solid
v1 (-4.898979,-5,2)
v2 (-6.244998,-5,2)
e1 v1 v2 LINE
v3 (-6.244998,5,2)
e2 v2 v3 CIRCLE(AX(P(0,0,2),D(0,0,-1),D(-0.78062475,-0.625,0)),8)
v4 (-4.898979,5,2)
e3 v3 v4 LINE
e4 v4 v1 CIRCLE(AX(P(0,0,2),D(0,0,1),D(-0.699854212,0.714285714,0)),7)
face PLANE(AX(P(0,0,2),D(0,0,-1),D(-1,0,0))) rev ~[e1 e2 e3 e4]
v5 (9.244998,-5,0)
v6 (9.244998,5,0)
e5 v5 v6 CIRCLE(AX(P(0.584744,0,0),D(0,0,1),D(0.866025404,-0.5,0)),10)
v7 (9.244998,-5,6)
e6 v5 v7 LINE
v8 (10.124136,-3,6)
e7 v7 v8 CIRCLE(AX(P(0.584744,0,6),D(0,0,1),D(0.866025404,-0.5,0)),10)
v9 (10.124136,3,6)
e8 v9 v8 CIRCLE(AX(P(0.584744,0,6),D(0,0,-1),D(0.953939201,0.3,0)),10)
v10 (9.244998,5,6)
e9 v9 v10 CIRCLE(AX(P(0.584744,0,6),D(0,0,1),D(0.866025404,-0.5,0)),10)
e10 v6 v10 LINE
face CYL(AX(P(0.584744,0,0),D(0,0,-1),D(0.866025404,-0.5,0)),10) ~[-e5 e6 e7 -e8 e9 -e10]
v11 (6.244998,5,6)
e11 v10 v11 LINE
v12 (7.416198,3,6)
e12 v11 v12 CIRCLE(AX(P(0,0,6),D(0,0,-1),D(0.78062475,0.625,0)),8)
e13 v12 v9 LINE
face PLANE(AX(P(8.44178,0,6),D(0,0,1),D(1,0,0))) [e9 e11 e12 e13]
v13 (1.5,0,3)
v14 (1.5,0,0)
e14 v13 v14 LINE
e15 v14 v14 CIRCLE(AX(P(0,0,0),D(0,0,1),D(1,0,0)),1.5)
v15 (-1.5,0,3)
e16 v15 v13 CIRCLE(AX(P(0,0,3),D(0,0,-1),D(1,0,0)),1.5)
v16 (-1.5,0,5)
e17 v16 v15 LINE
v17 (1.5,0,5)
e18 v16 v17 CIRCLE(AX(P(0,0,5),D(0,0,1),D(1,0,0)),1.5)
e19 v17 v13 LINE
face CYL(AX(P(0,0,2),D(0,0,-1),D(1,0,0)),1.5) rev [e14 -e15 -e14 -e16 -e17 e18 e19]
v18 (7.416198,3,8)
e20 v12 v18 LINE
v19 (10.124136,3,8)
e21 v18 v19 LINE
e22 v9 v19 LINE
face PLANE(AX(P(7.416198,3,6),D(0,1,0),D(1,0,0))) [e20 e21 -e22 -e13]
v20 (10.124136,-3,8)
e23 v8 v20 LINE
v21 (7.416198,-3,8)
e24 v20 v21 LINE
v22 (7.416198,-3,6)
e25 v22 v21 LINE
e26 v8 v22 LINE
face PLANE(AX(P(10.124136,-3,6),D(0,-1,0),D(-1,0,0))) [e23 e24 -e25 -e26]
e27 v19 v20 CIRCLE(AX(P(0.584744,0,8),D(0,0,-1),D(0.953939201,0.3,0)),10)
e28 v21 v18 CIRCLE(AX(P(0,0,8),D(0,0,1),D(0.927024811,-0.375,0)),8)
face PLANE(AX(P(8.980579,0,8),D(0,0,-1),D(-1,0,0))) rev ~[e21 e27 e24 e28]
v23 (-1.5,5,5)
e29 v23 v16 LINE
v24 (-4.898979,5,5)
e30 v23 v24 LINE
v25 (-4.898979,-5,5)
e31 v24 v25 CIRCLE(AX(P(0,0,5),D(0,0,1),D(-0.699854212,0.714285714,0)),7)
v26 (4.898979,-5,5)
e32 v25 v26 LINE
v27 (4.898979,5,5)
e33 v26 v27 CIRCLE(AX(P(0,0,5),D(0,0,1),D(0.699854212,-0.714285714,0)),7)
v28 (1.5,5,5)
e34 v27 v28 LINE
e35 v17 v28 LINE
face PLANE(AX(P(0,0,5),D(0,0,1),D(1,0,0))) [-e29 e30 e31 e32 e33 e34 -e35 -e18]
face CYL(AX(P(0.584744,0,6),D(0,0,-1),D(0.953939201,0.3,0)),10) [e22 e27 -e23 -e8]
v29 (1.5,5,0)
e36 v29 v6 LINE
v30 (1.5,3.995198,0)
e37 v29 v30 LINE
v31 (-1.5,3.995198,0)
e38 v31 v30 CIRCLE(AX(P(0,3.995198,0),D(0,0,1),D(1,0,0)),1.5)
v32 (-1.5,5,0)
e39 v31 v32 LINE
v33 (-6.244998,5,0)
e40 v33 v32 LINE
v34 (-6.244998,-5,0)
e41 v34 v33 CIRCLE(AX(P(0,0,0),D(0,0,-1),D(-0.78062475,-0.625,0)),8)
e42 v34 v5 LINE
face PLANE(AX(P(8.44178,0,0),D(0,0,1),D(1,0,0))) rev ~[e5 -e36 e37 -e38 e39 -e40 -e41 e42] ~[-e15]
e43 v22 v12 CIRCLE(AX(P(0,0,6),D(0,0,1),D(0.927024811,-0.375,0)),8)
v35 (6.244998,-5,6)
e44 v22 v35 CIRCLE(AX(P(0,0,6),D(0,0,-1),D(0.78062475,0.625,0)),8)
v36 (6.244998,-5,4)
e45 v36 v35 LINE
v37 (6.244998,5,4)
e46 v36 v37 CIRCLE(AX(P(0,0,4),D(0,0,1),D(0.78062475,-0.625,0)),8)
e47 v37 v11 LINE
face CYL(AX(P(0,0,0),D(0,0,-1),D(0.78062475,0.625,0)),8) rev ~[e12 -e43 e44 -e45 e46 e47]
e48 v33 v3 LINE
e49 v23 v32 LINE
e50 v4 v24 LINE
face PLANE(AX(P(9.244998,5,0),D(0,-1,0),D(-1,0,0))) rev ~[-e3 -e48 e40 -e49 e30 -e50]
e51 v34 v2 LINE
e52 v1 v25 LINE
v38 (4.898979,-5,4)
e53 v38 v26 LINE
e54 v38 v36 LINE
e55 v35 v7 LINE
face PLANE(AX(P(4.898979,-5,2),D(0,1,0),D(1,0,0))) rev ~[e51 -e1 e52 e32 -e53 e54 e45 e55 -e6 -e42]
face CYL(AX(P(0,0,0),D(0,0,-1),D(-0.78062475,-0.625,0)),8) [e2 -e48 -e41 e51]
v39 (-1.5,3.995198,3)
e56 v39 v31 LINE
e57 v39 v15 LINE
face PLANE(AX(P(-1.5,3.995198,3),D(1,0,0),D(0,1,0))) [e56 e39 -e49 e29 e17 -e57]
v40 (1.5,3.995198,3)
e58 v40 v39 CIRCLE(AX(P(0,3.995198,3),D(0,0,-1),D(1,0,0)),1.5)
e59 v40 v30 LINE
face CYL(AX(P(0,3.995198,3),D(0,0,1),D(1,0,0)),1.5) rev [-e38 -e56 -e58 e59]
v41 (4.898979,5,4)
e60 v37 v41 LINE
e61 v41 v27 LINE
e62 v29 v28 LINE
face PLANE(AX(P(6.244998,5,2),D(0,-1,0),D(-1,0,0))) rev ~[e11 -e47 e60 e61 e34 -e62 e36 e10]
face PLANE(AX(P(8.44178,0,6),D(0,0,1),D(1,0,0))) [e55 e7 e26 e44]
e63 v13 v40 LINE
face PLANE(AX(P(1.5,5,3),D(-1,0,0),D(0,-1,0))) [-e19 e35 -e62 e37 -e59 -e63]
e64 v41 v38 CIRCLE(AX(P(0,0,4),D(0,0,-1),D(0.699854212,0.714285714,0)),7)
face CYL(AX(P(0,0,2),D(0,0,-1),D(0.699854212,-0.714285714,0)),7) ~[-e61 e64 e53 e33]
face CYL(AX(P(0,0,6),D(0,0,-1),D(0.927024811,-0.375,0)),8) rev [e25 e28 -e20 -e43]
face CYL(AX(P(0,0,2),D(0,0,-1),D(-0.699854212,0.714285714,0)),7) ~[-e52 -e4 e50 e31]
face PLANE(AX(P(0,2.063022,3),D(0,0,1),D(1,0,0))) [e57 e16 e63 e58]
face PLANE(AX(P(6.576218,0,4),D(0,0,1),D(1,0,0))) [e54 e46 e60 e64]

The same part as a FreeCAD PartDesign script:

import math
import FreeCAD as App
import Part
import Sketcher
Q = App.Units.Quantity

doc = App.newDocument("Part")
body = doc.addObject("PartDesign::Body", "Body")

# Sketch on XY plane
sketch1 = doc.addObject("Sketcher::SketchObject", "Sketch")
body.addObject(sketch1)
sketch1.AttachmentSupport = (doc.XY_Plane, [""])
sketch1.MapMode = "FlatFace"
sketch1.addGeometry([
    Part.LineSegment(App.Vector(6.2, 5, 0), App.Vector(-6.2, 5, 0)),  # 0
    Part.ArcOfCircle(Part.Circle(App.Vector(0, 0, 0), App.Vector(0, 0, 1), 8), math.radians(141), math.radians(219)),  # 1
    Part.LineSegment(App.Vector(-6.2, -5, 0), App.Vector(6.2, -5, 0)),  # 2
    Part.ArcOfCircle(Part.Circle(App.Vector(0, 0, 0), App.Vector(0, 0, 1), 8), math.radians(-39), math.radians(39)),  # 3
    Part.Circle(App.Vector(0, 0, 0), App.Vector(0, 0, 1), 1.5),  # 4
], False)
sketch1.addConstraint([
    Sketcher.Constraint("Coincident", 0, 2, 1, 1),
    Sketcher.Constraint("Coincident", 1, 2, 2, 1),
    Sketcher.Constraint("Coincident", 2, 2, 3, 1),
    Sketcher.Constraint("Coincident", 3, 2, 0, 1),
    Sketcher.Constraint("Horizontal", 0),
    Sketcher.Constraint("Horizontal", 2),
    Sketcher.Constraint("Coincident", 1, 3, -1, 1),
    Sketcher.Constraint("Coincident", 3, 3, -1, 1),
    Sketcher.Constraint("Coincident", 4, 3, -1, 1),
    Sketcher.Constraint("Equal", 1, 3),
    Sketcher.Constraint("Vertical", 0, 2, 1, 2),
    Sketcher.Constraint("Diameter", 4, Q("3 mm")),
    Sketcher.Constraint("Radius", 1, Q("8 mm")),
    Sketcher.Constraint("DistanceY", -1, 1, 0, 2, Q("5 mm")),
])
pad1 = doc.addObject("PartDesign::Pad", "Pad")
body.addObject(pad1)
pad1.Profile = sketch1
pad1.Length = 2

# Sketch on XY plane
sketch2 = doc.addObject("Sketcher::SketchObject", "Sketch001")
body.addObject(sketch2)
sketch2.AttachmentSupport = (doc.XY_Plane, [""])
sketch2.MapMode = "FlatFace"
sketch2.AttachmentOffset = App.Placement(App.Vector(0, 0, 2), App.Rotation())
sketch2.addGeometry([
    Part.LineSegment(App.Vector(-4.9, -5, 0), App.Vector(4.9, -5, 0)),  # 0
    Part.ArcOfCircle(Part.Circle(App.Vector(0, 0, 0), App.Vector(0, 0, 1), 7), math.radians(-46), math.radians(46)),  # 1
    Part.LineSegment(App.Vector(4.9, 5, 0), App.Vector(-4.9, 5, 0)),  # 2
    Part.ArcOfCircle(Part.Circle(App.Vector(0, 0, 0), App.Vector(0, 0, 1), 7), math.radians(134), math.radians(226)),  # 3
    Part.Circle(App.Vector(0, 0, 0), App.Vector(0, 0, 1), 1.5),  # 4
], False)
sketch2.addConstraint([
    Sketcher.Constraint("Coincident", 0, 2, 1, 1),
    Sketcher.Constraint("Coincident", 1, 2, 2, 1),
    Sketcher.Constraint("Coincident", 2, 2, 3, 1),
    Sketcher.Constraint("Coincident", 3, 2, 0, 1),
    Sketcher.Constraint("Horizontal", 0),
    Sketcher.Constraint("Horizontal", 2),
    Sketcher.Constraint("Coincident", 1, 3, -1, 1),
    Sketcher.Constraint("Coincident", 3, 3, -1, 1),
    Sketcher.Constraint("Coincident", 4, 3, -1, 1),
    Sketcher.Constraint("Equal", 1, 3),
    Sketcher.Constraint("Vertical", 0, 2, 1, 2),
    Sketcher.Constraint("Diameter", 4, Q("3 mm")),
    Sketcher.Constraint("Radius", 1, Q("7 mm")),
    Sketcher.Constraint("DistanceY", 0, 2, -1, 1, Q("5 mm")),
])
pad2 = doc.addObject("PartDesign::Pad", "Pad001")
body.addObject(pad2)
pad2.Profile = sketch2
pad2.Length = 3

# Sketch on XY plane
sketch3 = doc.addObject("Sketcher::SketchObject", "Sketch002")
body.addObject(sketch3)
sketch3.AttachmentSupport = (doc.XY_Plane, [""])
sketch3.MapMode = "FlatFace"
sketch3.addGeometry([
    Part.LineSegment(App.Vector(9.2, -5, 0), App.Vector(6.2, -5, 0)),
    Part.ArcOfCircle(Part.Circle(App.Vector(0, 0, 0), App.Vector(0, 0, 1), 8), math.radians(-39), math.radians(39)),
    Part.LineSegment(App.Vector(6.2, 5, 0), App.Vector(9.2, 5, 0)),
    Part.ArcOfCircle(Part.Circle(App.Vector(0.6, 0, 0), App.Vector(0, 0, 1), 10), math.radians(-30), math.radians(30)),
], False)
sketch3.addConstraint([
    Sketcher.Constraint("Coincident", 0, 2, 1, 1),
    Sketcher.Constraint("Coincident", 1, 2, 2, 1),
    Sketcher.Constraint("Coincident", 2, 2, 3, 2),
    Sketcher.Constraint("Coincident", 3, 1, 0, 1),
    Sketcher.Constraint("Horizontal", 0),
    Sketcher.Constraint("Horizontal", 2),
    Sketcher.Constraint("Coincident", 1, 3, -1, 1),
    Sketcher.Constraint("Symmetric", 2, 2, 3, 1, -1),
    Sketcher.Constraint("Radius", 1, Q("8 mm")),
    Sketcher.Constraint("Radius", 3, Q("10 mm")),
    Sketcher.Constraint("DistanceX", 0, 2, 0, 1, Q("3 mm")),
    Sketcher.Constraint("DistanceY", 0, 2, -1, 1, Q("5 mm")),
])
pad3 = doc.addObject("PartDesign::Pad", "Pad002")
body.addObject(pad3)
pad3.Profile = sketch3
pad3.Length = 6

# Sketch on XY plane
sketch4 = doc.addObject("Sketcher::SketchObject", "Sketch003")
body.addObject(sketch4)
sketch4.AttachmentSupport = (doc.XY_Plane, [""])
sketch4.MapMode = "FlatFace"
sketch4.AttachmentOffset = App.Placement(App.Vector(0, 0, 6), App.Rotation())
sketch4.addGeometry([
    Part.LineSegment(App.Vector(10.1, 3, 0), App.Vector(7.4, 3, 0)),
    Part.ArcOfCircle(Part.Circle(App.Vector(0, 0, 0), App.Vector(0, 0, 1), 8), math.radians(-22), math.radians(22)),
    Part.LineSegment(App.Vector(7.4, -3, 0), App.Vector(10.1, -3, 0)),
    Part.ArcOfCircle(Part.Circle(App.Vector(0.6, 0, 0), App.Vector(0, 0, 1), 10), math.radians(-17), math.radians(17)),
], False)
sketch4.addConstraint([
    Sketcher.Constraint("Coincident", 0, 2, 1, 2),
    Sketcher.Constraint("Coincident", 1, 1, 2, 1),
    Sketcher.Constraint("Coincident", 2, 2, 3, 1),
    Sketcher.Constraint("Coincident", 3, 2, 0, 1),
    Sketcher.Constraint("Horizontal", 0),
    Sketcher.Constraint("Horizontal", 2),
    Sketcher.Constraint("Coincident", 1, 3, -1, 1),
    Sketcher.Constraint("Symmetric", 2, 2, 3, 2, -1),
    Sketcher.Constraint("Radius", 1, Q("8 mm")),
    Sketcher.Constraint("Radius", 3, Q("10 mm")),
    Sketcher.Constraint("DistanceY", -1, 1, 0, 2, Q("3 mm")),
    Sketcher.Constraint("DistanceX", 0, 2, 0, 1, Q("2.707937 mm")),
])
pad4 = doc.addObject("PartDesign::Pad", "Pad003")
body.addObject(pad4)
pad4.Profile = sketch4
pad4.Length = 2

# Sketch on XY plane
sketch5 = doc.addObject("Sketcher::SketchObject", "Sketch004")
body.addObject(sketch5)
sketch5.AttachmentSupport = (doc.XY_Plane, [""])
sketch5.MapMode = "FlatFace"
sketch5.AttachmentOffset = App.Placement(App.Vector(0, 0, 5), App.Rotation())
sketch5.addGeometry([
    Part.LineSegment(App.Vector(-1.5, 5, 0), App.Vector(-1.5, 0, 0)),
    Part.ArcOfCircle(Part.Circle(App.Vector(0, 0, 0), App.Vector(0, 0, 1), 1.5), math.radians(180), math.radians(360)),
    Part.LineSegment(App.Vector(1.5, 0, 0), App.Vector(1.5, 5, 0)),
    Part.LineSegment(App.Vector(1.5, 5, 0), App.Vector(-1.5, 5, 0)),
], False)
sketch5.addConstraint([
    Sketcher.Constraint("Tangent", 0, 2, 1, 1),
    Sketcher.Constraint("Tangent", 1, 2, 2, 1),
    Sketcher.Constraint("Coincident", 2, 2, 3, 1),
    Sketcher.Constraint("Coincident", 3, 2, 0, 1),
    Sketcher.Constraint("Vertical", 0),
    Sketcher.Constraint("Vertical", 2),
    Sketcher.Constraint("Horizontal", 3),
    Sketcher.Constraint("Coincident", 1, 3, -1, 1),
    Sketcher.Constraint("Radius", 1, Q("1.5 mm")),
    Sketcher.Constraint("DistanceY", 0, 2, 0, 1, Q("5 mm")),
])
pocket1 = doc.addObject("PartDesign::Pocket", "Pocket")
body.addObject(pocket1)
pocket1.Profile = sketch5
pocket1.Length = 2

# Sketch on XY plane
sketch6 = doc.addObject("Sketcher::SketchObject", "Sketch005")
body.addObject(sketch6)
sketch6.AttachmentSupport = (doc.XY_Plane, [""])
sketch6.MapMode = "FlatFace"
sketch6.AttachmentOffset = App.Placement(App.Vector(0, 0, 3), App.Rotation())
sketch6.addGeometry([
    Part.LineSegment(App.Vector(1.5, 5, 0), App.Vector(-1.5, 5, 0)),
    Part.LineSegment(App.Vector(-1.5, 5, 0), App.Vector(-1.5, 4, 0)),
    Part.ArcOfCircle(Part.Circle(App.Vector(0, 4, 0), App.Vector(0, 0, 1), 1.5), math.radians(180), math.radians(360)),
    Part.LineSegment(App.Vector(1.5, 4, 0), App.Vector(1.5, 5, 0)),
], False)
sketch6.addConstraint([
    Sketcher.Constraint("Coincident", 0, 2, 1, 1),
    Sketcher.Constraint("Tangent", 1, 2, 2, 1),
    Sketcher.Constraint("Tangent", 2, 2, 3, 1),
    Sketcher.Constraint("Coincident", 3, 2, 0, 1),
    Sketcher.Constraint("Horizontal", 0),
    Sketcher.Constraint("Vertical", 1),
    Sketcher.Constraint("Vertical", 3),
    Sketcher.Constraint("PointOnObject", 2, 3, -2),
    Sketcher.Constraint("Radius", 2, Q("1.5 mm")),
    Sketcher.Constraint("DistanceY", -1, 1, 0, 2, Q("5 mm")),
    Sketcher.Constraint("DistanceY", 1, 2, 1, 1, Q("1.004802 mm")),
])
pocket2 = doc.addObject("PartDesign::Pocket", "Pocket001")
body.addObject(pocket2)
pocket2.Profile = sketch6
pocket2.Length = 4

# Sketch on XY plane
sketch7 = doc.addObject("Sketcher::SketchObject", "Sketch006")
body.addObject(sketch7)
sketch7.AttachmentSupport = (doc.XY_Plane, [""])
sketch7.MapMode = "FlatFace"
sketch7.AttachmentOffset = App.Placement(App.Vector(0, 0, 2), App.Rotation())
sketch7.addGeometry([
    Part.LineSegment(App.Vector(4.9, -5, 0), App.Vector(6.2, -5, 0)),
    Part.ArcOfCircle(Part.Circle(App.Vector(0, 0, 0), App.Vector(0, 0, 1), 8), math.radians(-39), math.radians(39)),
    Part.LineSegment(App.Vector(6.2, 5, 0), App.Vector(4.9, 5, 0)),
    Part.ArcOfCircle(Part.Circle(App.Vector(0, 0, 0), App.Vector(0, 0, 1), 7), math.radians(-46), math.radians(46)),
], False)
sketch7.addConstraint([
    Sketcher.Constraint("Coincident", 0, 2, 1, 1),
    Sketcher.Constraint("Coincident", 1, 2, 2, 1),
    Sketcher.Constraint("Coincident", 2, 2, 3, 2),
    Sketcher.Constraint("Coincident", 3, 1, 0, 1),
    Sketcher.Constraint("Horizontal", 0),
    Sketcher.Constraint("Horizontal", 2),
    Sketcher.Constraint("Coincident", 1, 3, -1, 1),
    Sketcher.Constraint("Coincident", 3, 3, -1, 1),
    Sketcher.Constraint("Vertical", 0, 2, 1, 2),
    Sketcher.Constraint("Radius", 1, Q("8 mm")),
    Sketcher.Constraint("Radius", 3, Q("7 mm")),
    Sketcher.Constraint("DistanceY", 0, 2, -1, 1, Q("5 mm")),
])
pad5 = doc.addObject("PartDesign::Pad", "Pad004")
body.addObject(pad5)
pad5.Profile = sketch7
pad5.Length = 2

doc.recompute()
